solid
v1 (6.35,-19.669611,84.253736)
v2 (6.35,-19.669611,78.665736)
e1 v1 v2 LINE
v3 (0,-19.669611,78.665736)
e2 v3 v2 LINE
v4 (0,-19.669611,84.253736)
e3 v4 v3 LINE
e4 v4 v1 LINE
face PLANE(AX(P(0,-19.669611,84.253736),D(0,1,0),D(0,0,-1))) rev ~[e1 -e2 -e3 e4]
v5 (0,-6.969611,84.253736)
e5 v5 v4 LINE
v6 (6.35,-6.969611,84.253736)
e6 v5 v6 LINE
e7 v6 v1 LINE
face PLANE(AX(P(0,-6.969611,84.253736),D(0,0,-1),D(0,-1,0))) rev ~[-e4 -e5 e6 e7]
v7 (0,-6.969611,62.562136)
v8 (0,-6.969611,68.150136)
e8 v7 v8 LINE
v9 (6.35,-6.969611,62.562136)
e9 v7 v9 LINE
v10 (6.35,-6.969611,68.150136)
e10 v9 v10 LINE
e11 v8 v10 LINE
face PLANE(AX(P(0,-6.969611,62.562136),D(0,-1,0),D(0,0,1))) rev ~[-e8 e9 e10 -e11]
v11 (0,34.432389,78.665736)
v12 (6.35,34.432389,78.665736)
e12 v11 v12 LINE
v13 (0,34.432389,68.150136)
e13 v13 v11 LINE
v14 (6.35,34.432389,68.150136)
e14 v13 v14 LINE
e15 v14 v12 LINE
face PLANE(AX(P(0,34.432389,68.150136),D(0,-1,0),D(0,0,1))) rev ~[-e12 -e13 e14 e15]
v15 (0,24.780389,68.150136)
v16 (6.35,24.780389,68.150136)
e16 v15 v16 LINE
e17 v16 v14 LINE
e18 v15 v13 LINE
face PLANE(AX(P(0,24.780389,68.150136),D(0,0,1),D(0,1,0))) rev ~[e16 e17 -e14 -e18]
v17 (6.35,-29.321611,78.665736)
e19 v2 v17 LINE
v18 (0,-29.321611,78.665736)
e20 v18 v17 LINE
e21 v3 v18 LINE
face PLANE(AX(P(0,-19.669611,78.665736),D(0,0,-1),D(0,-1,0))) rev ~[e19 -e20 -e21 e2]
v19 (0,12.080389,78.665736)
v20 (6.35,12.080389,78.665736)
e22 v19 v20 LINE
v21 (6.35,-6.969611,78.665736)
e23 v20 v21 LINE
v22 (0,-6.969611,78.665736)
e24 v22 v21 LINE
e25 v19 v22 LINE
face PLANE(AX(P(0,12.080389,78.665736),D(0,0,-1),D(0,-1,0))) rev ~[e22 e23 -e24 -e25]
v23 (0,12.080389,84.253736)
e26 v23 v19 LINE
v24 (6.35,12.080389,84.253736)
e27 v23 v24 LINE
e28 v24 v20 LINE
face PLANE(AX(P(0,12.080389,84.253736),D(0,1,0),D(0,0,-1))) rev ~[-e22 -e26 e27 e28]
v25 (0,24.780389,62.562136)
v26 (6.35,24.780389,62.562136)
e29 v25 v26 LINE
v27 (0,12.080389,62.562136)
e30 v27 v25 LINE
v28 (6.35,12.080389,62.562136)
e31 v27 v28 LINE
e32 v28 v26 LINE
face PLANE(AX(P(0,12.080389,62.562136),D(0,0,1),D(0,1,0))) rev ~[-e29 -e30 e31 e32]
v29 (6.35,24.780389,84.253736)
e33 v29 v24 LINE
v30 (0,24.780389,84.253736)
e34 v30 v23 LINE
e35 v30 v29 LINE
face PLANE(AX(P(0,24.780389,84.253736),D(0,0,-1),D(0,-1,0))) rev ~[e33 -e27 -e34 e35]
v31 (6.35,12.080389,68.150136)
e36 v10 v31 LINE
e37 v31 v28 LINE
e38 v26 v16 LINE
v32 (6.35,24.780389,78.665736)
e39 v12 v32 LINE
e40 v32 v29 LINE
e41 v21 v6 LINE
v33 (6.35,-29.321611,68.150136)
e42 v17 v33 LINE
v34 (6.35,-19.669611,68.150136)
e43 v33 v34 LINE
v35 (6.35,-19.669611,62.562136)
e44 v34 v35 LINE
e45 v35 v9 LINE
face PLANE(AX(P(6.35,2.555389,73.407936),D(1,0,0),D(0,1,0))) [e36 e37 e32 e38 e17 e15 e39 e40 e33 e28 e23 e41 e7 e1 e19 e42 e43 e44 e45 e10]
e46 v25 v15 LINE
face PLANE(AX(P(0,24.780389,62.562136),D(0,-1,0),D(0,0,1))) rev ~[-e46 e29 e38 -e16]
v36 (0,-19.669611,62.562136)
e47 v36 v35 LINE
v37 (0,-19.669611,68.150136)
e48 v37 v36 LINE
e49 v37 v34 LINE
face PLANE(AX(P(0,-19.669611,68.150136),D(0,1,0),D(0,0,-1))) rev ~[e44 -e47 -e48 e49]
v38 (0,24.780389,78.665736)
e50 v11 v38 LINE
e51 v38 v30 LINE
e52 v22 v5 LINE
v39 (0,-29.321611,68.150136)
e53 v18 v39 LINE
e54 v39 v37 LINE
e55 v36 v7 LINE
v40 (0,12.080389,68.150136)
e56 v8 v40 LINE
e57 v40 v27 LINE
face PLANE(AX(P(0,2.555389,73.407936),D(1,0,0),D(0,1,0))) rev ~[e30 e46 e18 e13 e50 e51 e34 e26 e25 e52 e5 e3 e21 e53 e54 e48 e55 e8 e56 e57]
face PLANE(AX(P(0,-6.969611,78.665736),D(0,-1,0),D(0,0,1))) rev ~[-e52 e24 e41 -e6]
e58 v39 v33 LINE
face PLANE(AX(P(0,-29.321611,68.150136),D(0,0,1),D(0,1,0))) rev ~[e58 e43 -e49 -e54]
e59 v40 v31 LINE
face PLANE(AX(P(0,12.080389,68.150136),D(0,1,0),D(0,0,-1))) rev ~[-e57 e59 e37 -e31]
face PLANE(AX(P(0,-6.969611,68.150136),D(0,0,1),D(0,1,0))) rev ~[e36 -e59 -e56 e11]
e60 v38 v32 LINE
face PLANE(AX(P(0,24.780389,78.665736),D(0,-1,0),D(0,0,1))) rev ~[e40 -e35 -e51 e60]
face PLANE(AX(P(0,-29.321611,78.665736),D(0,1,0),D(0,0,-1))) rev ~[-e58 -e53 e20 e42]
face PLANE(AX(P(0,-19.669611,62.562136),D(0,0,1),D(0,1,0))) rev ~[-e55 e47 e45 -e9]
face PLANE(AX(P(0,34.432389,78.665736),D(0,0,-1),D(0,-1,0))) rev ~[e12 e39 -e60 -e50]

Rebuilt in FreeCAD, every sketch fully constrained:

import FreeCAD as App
import Part
import Sketcher
from FreeCAD import Vector
Q = App.Units.Quantity

doc = App.newDocument("Part")
params = doc.addObject("Spreadsheet::Sheet", "Params")
for row, (alias, value) in enumerate([
    ("sketch1_width", "0.5 in"),
    ("sketch1_width2", "0.38 in"),
    ("sketch1_width3", "0.75 in"),
    ("sketch1_height", "0.22 in"),
    ("sketch1_height2", "0.414 in"),
    ("pad1_length", "0.25 in"),
], start=1):
    params.set(f"A{row}", alias)
    params.set(f"B{row}", "=" + value)
    params.setAlias(f"B{row}", alias)

body = doc.addObject("PartDesign::Body", "Body")

sketch1 = doc.addObject("Sketcher::SketchObject", "Sketch")
body.addObject(sketch1)
sketch1.AttachmentSupport = (doc.YZ_Plane, [""])
sketch1.MapMode = "FlatFace"
sketch1.addGeometry(Part.LineSegment(Vector(-19.669611, 78.665736, 0), Vector(-29.321611, 78.665736, 0)), False)
sketch1.addGeometry(Part.LineSegment(Vector(-29.321611, 78.665736, 0), Vector(-29.321611, 68.150136, 0)), False)
sketch1.addGeometry(Part.LineSegment(Vector(-29.321611, 68.150136, 0), Vector(-19.669611, 68.150136, 0)), False)
sketch1.addGeometry(Part.LineSegment(Vector(-19.669611, 68.150136, 0), Vector(-19.669611, 62.562136, 0)), False)
sketch1.addGeometry(Part.LineSegment(Vector(-19.669611, 62.562136, 0), Vector(-6.969611, 62.562136, 0)), False)
sketch1.addGeometry(Part.LineSegment(Vector(-6.969611, 62.562136, 0), Vector(-6.969611, 68.150136, 0)), False)
sketch1.addGeometry(Part.LineSegment(Vector(-6.969611, 68.150136, 0), Vector(12.080389, 68.150136, 0)), False)
sketch1.addGeometry(Part.LineSegment(Vector(12.080389, 68.150136, 0), Vector(12.080389, 62.562136, 0)), False)
sketch1.addGeometry(Part.LineSegment(Vector(12.080389, 62.562136, 0), Vector(24.780389, 62.562136, 0)), False)
sketch1.addGeometry(Part.LineSegment(Vector(24.780389, 62.562136, 0), Vector(24.780389, 68.150136, 0)), False)
sketch1.addGeometry(Part.LineSegment(Vector(24.780389, 68.150136, 0), Vector(34.432389, 68.150136, 0)), False)
sketch1.addGeometry(Part.LineSegment(Vector(34.432389, 68.150136, 0), Vector(34.432389, 78.665736, 0)), False)
sketch1.addGeometry(Part.LineSegment(Vector(34.432389, 78.665736, 0), Vector(24.780389, 78.665736, 0)), False)
sketch1.addGeometry(Part.LineSegment(Vector(24.780389, 78.665736, 0), Vector(24.780389, 84.253736, 0)), False)
sketch1.addGeometry(Part.LineSegment(Vector(24.780389, 84.253736, 0), Vector(12.080389, 84.253736, 0)), False)
sketch1.addGeometry(Part.LineSegment(Vector(12.080389, 84.253736, 0), Vector(12.080389, 78.665736, 0)), False)
sketch1.addGeometry(Part.LineSegment(Vector(12.080389, 78.665736, 0), Vector(-6.969611, 78.665736, 0)), False)
sketch1.addGeometry(Part.LineSegment(Vector(-6.969611, 78.665736, 0), Vector(-6.969611, 84.253736, 0)), False)
sketch1.addGeometry(Part.LineSegment(Vector(-6.969611, 84.253736, 0), Vector(-19.669611, 84.253736, 0)), False)
sketch1.addGeometry(Part.LineSegment(Vector(-19.669611, 84.253736, 0), Vector(-19.669611, 78.665736, 0)), False)
sketch1.addConstraint(Sketcher.Constraint("Coincident", 0, 2, 1, 1))
sketch1.addConstraint(Sketcher.Constraint("Coincident", 1, 2, 2, 1))
sketch1.addConstraint(Sketcher.Constraint("Coincident", 2, 2, 3, 1))
sketch1.addConstraint(Sketcher.Constraint("Coincident", 3, 2, 4, 1))
sketch1.addConstraint(Sketcher.Constraint("Coincident", 4, 2, 5, 1))
sketch1.addConstraint(Sketcher.Constraint("Coincident", 5, 2, 6, 1))
sketch1.addConstraint(Sketcher.Constraint("Coincident", 6, 2, 7, 1))
sketch1.addConstraint(Sketcher.Constraint("Coincident", 7, 2, 8, 1))
sketch1.addConstraint(Sketcher.Constraint("Coincident", 8, 2, 9, 1))
sketch1.addConstraint(Sketcher.Constraint("Coincident", 9, 2, 10, 1))
sketch1.addConstraint(Sketcher.Constraint("Coincident", 10, 2, 11, 1))
sketch1.addConstraint(Sketcher.Constraint("Coincident", 11, 2, 12, 1))
sketch1.addConstraint(Sketcher.Constraint("Coincident", 12, 2, 13, 1))
sketch1.addConstraint(Sketcher.Constraint("Coincident", 13, 2, 14, 1))
sketch1.addConstraint(Sketcher.Constraint("Coincident", 14, 2, 15, 1))
sketch1.addConstraint(Sketcher.Constraint("Coincident", 15, 2, 16, 1))
sketch1.addConstraint(Sketcher.Constraint("Coincident", 16, 2, 17, 1))
sketch1.addConstraint(Sketcher.Constraint("Coincident", 17, 2, 18, 1))
sketch1.addConstraint(Sketcher.Constraint("Coincident", 18, 2, 19, 1))
sketch1.addConstraint(Sketcher.Constraint("Coincident", 19, 2, 0, 1))
sketch1.addConstraint(Sketcher.Constraint("Horizontal", 0))
sketch1.addConstraint(Sketcher.Constraint("Vertical", 1))
sketch1.addConstraint(Sketcher.Constraint("Horizontal", 2))
sketch1.addConstraint(Sketcher.Constraint("Vertical", 3))
sketch1.addConstraint(Sketcher.Constraint("Horizontal", 4))
sketch1.addConstraint(Sketcher.Constraint("Vertical", 5))
sketch1.addConstraint(Sketcher.Constraint("Horizontal", 6))
sketch1.addConstraint(Sketcher.Constraint("Vertical", 7))
sketch1.addConstraint(Sketcher.Constraint("Horizontal", 8))
sketch1.addConstraint(Sketcher.Constraint("Vertical", 9))
sketch1.addConstraint(Sketcher.Constraint("Horizontal", 10))
sketch1.addConstraint(Sketcher.Constraint("Vertical", 11))
sketch1.addConstraint(Sketcher.Constraint("Horizontal", 12))
sketch1.addConstraint(Sketcher.Constraint("Vertical", 13))
sketch1.addConstraint(Sketcher.Constraint("Horizontal", 14))
sketch1.addConstraint(Sketcher.Constraint("Vertical", 15))
sketch1.addConstraint(Sketcher.Constraint("Horizontal", 16))
sketch1.addConstraint(Sketcher.Constraint("Vertical", 17))
sketch1.addConstraint(Sketcher.Constraint("Horizontal", 18))
sketch1.addConstraint(Sketcher.Constraint("Vertical", 19))
sketch1.addConstraint(Sketcher.Constraint("Horizontal", 2, 2, 5, 2))
sketch1.addConstraint(Sketcher.Constraint("Horizontal", 4, 2, 7, 2))
sketch1.addConstraint(Sketcher.Constraint("Horizontal", 6, 2, 9, 2))
sketch1.addConstraint(Sketcher.Constraint("Horizontal", 0, 2, 11, 2))
sketch1.addConstraint(Sketcher.Constraint("Horizontal", 12, 2, 15, 2))
sketch1.addConstraint(Sketcher.Constraint("Horizontal", 14, 2, 17, 2))
sketch1.addConstraint(Sketcher.Constraint("Vertical", 9, 2, 12, 2))
sketch1.addConstraint(Sketcher.Constraint("Vertical", 7, 2, 14, 2))
sketch1.addConstraint(Sketcher.Constraint("Vertical", 5, 2, 16, 2))
sketch1.addConstraint(Sketcher.Constraint("Vertical", 3, 2, 18, 2))
sketch1.addConstraint(Sketcher.Constraint("Equal", 4, 8))
sketch1.addConstraint(Sketcher.Constraint("Equal", 2, 10))
sketch1.addConstraint(Sketcher.Constraint("Equal", 9, 13))
sketch1.addConstraint(Sketcher.Constraint("DistanceX", 4, 1, 4, 2, Q("0.5 in")))
sketch1.addConstraint(Sketcher.Constraint("DistanceX", 0, 2, 0, 1, Q("0.38 in")))
sketch1.addConstraint(Sketcher.Constraint("DistanceX", 6, 1, 6, 2, Q("0.75 in")))
sketch1.addConstraint(Sketcher.Constraint("DistanceY", 3, 2, 3, 1, Q("0.22 in")))
sketch1.addConstraint(Sketcher.Constraint("DistanceY", 1, 2, 1, 1, Q("0.414 in")))
sketch1.addConstraint(Sketcher.Constraint("DistanceX", 0, 2, -1, 1, 29.321611))
sketch1.addConstraint(Sketcher.Constraint("DistanceY", -1, 1, 0, 2, 78.665736))
sketch1.setExpression("Constraints[53]", "Params.sketch1_width")
sketch1.setExpression("Constraints[54]", "Params.sketch1_width2")
sketch1.setExpression("Constraints[55]", "Params.sketch1_width3")
sketch1.setExpression("Constraints[56]", "Params.sketch1_height")
sketch1.setExpression("Constraints[57]", "Params.sketch1_height2")
pad1 = doc.addObject("PartDesign::Pad", "Pad")
body.addObject(pad1)
pad1.Profile = sketch1
pad1.setExpression("Length", "Params.pad1_length")

doc.recompute()
